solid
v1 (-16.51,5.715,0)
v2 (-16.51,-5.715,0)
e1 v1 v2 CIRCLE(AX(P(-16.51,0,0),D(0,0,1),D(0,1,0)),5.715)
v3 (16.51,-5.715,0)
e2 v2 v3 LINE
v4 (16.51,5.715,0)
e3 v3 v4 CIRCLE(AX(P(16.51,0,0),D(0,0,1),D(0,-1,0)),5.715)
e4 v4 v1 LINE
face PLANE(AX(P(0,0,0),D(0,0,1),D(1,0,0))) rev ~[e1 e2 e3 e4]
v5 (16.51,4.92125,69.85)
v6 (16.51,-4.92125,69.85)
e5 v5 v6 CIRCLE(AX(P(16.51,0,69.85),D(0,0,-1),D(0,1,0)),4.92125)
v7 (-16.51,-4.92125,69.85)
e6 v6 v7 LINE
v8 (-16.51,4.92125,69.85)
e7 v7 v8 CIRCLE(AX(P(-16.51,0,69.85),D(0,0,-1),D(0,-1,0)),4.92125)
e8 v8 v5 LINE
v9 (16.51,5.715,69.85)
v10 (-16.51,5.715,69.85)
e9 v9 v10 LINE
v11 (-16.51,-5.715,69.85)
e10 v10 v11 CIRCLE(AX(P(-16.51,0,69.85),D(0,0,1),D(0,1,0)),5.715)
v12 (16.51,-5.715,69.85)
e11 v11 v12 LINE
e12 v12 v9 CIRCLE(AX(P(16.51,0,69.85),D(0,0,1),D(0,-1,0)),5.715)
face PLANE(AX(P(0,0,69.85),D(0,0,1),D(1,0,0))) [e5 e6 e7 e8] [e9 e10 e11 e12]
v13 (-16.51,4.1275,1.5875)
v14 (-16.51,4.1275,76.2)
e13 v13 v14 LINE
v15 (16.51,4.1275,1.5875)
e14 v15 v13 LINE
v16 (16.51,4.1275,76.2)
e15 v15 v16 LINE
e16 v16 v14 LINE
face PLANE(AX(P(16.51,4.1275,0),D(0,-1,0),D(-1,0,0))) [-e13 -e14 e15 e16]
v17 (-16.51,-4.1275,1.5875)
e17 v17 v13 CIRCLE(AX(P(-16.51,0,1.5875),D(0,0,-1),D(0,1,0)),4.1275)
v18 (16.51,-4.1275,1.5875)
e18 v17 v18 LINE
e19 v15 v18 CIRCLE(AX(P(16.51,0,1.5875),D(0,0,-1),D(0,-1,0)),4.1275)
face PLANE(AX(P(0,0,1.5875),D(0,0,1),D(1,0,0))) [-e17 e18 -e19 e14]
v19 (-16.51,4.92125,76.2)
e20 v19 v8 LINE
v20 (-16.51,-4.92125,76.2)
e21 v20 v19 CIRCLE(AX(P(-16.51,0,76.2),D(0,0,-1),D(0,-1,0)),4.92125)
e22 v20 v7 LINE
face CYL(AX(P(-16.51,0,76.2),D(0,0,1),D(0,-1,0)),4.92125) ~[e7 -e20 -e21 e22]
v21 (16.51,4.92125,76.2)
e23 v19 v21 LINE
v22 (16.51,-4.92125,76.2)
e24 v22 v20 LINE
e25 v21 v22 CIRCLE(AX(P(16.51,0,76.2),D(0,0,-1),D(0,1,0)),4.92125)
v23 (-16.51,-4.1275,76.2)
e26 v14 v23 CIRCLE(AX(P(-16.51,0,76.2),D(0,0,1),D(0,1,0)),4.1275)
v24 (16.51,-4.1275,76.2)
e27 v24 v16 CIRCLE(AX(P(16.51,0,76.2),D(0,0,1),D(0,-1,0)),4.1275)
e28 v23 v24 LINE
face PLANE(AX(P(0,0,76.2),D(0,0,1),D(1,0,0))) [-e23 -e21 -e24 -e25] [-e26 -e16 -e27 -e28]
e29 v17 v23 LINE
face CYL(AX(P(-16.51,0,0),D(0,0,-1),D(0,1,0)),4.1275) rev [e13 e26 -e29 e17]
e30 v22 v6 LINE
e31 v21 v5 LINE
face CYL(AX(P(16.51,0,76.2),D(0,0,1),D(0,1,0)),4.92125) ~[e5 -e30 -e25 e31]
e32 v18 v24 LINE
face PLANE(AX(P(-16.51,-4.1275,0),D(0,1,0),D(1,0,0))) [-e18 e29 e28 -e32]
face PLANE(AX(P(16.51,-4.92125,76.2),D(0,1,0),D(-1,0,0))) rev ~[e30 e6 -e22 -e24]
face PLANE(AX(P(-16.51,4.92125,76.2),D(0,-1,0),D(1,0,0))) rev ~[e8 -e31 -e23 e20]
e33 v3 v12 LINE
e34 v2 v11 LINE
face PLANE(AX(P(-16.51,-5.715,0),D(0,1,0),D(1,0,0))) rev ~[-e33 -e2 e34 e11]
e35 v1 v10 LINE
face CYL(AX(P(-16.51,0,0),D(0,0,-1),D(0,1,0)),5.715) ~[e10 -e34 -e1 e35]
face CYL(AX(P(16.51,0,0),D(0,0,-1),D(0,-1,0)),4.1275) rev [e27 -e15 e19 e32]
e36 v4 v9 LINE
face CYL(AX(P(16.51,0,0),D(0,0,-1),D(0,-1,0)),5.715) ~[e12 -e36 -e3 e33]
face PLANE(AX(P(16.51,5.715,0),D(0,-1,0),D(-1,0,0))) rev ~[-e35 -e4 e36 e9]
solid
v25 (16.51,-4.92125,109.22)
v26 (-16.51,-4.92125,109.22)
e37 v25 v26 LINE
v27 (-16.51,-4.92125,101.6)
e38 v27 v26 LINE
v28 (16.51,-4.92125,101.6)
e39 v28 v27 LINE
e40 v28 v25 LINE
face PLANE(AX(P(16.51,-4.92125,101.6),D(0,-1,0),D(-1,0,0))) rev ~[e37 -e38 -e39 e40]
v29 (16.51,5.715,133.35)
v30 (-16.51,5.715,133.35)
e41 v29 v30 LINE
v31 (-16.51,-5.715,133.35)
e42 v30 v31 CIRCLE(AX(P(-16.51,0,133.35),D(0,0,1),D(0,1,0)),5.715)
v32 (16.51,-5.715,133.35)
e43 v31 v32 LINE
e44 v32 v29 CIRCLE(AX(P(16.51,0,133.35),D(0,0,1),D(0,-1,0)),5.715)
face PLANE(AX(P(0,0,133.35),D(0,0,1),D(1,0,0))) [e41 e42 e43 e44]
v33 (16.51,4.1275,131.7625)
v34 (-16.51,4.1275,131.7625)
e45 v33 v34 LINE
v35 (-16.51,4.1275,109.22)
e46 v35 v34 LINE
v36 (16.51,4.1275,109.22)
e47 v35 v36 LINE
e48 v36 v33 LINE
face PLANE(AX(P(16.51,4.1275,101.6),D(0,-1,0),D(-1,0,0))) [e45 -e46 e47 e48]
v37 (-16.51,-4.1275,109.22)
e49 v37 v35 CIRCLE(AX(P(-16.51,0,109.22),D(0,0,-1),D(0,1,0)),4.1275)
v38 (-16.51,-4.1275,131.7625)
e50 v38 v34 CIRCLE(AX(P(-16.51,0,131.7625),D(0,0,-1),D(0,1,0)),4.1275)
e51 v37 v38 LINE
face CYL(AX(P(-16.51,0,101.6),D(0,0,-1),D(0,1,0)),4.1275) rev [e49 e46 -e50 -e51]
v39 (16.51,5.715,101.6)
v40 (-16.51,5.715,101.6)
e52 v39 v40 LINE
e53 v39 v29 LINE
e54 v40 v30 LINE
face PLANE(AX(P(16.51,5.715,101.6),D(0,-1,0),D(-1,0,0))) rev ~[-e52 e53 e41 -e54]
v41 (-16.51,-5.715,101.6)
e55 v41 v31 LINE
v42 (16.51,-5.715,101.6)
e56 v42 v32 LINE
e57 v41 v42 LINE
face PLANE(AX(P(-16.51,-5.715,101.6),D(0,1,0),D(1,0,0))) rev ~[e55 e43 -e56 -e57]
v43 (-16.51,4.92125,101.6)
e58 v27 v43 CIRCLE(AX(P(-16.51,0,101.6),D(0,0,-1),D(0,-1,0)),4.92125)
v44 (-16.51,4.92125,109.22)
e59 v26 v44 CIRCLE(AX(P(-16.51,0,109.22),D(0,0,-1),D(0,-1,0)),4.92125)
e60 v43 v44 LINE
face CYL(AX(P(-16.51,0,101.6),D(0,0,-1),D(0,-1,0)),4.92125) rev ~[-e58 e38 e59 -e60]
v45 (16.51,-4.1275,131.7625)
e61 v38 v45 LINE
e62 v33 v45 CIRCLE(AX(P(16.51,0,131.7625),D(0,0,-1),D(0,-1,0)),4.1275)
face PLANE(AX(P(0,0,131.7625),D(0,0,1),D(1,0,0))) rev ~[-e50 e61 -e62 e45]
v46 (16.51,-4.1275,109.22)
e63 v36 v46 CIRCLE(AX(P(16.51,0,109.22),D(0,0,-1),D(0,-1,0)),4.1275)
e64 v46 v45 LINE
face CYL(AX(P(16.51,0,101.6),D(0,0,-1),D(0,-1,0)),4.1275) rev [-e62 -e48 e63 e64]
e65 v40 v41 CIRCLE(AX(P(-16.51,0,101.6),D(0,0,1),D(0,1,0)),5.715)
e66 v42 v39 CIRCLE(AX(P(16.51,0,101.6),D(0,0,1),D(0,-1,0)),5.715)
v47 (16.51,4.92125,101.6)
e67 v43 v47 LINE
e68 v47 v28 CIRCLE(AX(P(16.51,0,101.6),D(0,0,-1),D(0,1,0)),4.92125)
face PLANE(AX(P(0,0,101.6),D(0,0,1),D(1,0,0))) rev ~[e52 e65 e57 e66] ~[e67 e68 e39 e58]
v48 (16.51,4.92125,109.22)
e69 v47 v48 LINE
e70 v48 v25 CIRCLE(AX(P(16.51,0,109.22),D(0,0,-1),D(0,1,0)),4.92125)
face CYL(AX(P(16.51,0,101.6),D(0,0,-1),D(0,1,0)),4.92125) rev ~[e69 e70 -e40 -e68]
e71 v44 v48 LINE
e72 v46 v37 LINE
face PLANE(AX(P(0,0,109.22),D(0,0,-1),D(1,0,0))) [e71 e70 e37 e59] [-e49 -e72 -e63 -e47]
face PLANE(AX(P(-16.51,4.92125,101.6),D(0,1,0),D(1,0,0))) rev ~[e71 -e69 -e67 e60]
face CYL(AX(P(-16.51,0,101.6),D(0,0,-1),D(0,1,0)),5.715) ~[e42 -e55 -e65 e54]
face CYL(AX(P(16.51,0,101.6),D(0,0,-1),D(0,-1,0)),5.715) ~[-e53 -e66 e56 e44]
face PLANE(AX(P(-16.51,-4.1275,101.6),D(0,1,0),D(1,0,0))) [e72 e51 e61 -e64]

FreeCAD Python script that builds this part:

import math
import FreeCAD as App
import Part
import Sketcher
from FreeCAD import Vector
Q = App.Units.Quantity


def faces_at(feature, points):
    """Names of the faces that lie closest to the given points."""
    faces = feature.Shape.Faces
    near = lambda p: min(range(len(faces)), key=lambda i: faces[i].distToShape(Part.Vertex(*p))[0])
    return sorted({f"Face{near(p) + 1}" for p in points})

doc = App.newDocument("Part")
body = doc.addObject("PartDesign::Body", "Body")

sketch1 = body.newObject("Sketcher::SketchObject", "Sketch")
sketch1.AttachmentSupport = (doc.getObject("XY_Plane"), [""])
sketch1.MapMode = "FlatFace"
sketch1.addGeometry([
    Part.LineSegment(Vector(17, 6, 0), Vector(-17, 6, 0)),
    Part.ArcOfCircle(Part.Circle(Vector(-17, 0, 0), Vector(0, 0, 1), 6), math.radians(90), math.radians(270)),
    Part.LineSegment(Vector(-17, -6, 0), Vector(17, -6, 0)),
    Part.ArcOfCircle(Part.Circle(Vector(17, 0, 0), Vector(0, 0, 1), 6), math.radians(-90), math.radians(90)),
], False)
sketch1.addConstraint([
    Sketcher.Constraint("Tangent", 0, 2, 1, 1),
    Sketcher.Constraint("Tangent", 1, 2, 2, 1),
    Sketcher.Constraint("Tangent", 2, 2, 3, 1),
    Sketcher.Constraint("Tangent", 3, 2, 0, 1),
    Sketcher.Constraint("Horizontal", 0),
    Sketcher.Constraint("Horizontal", 2),
    Sketcher.Constraint("Symmetric", 1, 3, 3, 3, -1, 1),
    Sketcher.Constraint("DistanceX", 0, 2, 0, 1, Q("1.3 in")),
    Sketcher.Constraint("Radius", 1, Q("0.225 in")),
])
pad1 = body.newObject("PartDesign::Pad", "Pad")
pad1.Profile = sketch1
pad1.Length = Q("3 in")
doc.recompute()

thickness = body.newObject("PartDesign::Thickness", "Thickness")
thickness.Base = (pad1, faces_at(pad1, [(0, 0, 76.2)]))
thickness.Value = Q("0.0625 in")
thickness.Reversed = True
thickness.Join = "Arc"

sketch2 = body.newObject("Sketcher::SketchObject", "Sketch001")
sketch2.AttachmentSupport = (doc.getObject("XY_Plane"), [""])
sketch2.MapMode = "FlatFace"
sketch2.AttachmentOffset = App.Placement(Vector(0, 0, 3 * 25.4), App.Rotation())
sketch2.addGeometry([
    Part.LineSegment(Vector(16.5, 5.7, 0), Vector(-16.5, 5.7, 0)),
    Part.ArcOfCircle(Part.Circle(Vector(-16.5, 0, 0), Vector(0, 0, 1), 5.7), math.radians(90), math.radians(270)),
    Part.LineSegment(Vector(-16.5, -5.7, 0), Vector(16.5, -5.7, 0)),
    Part.ArcOfCircle(Part.Circle(Vector(16.5, 0, 0), Vector(0, 0, 1), 5.7), math.radians(-90), math.radians(90)),
    Part.LineSegment(Vector(16.5, -4.9, 0), Vector(-16.5, -4.9, 0)),
    Part.ArcOfCircle(Part.Circle(Vector(-16.5, 0, 0), Vector(0, 0, 1), 4.9), math.radians(90), math.radians(270)),
    Part.LineSegment(Vector(-16.5, 4.9, 0), Vector(16.5, 4.9, 0)),
    Part.ArcOfCircle(Part.Circle(Vector(16.5, 0, 0), Vector(0, 0, 1), 4.9), math.radians(-90), math.radians(90)),
], False)
sketch2.addConstraint([
    Sketcher.Constraint("Tangent", 0, 2, 1, 1),
    Sketcher.Constraint("Tangent", 1, 2, 2, 1),
    Sketcher.Constraint("Tangent", 2, 2, 3, 1),
    Sketcher.Constraint("Tangent", 3, 2, 0, 1),
    Sketcher.Constraint("Tangent", 4, 2, 5, 2),
    Sketcher.Constraint("Tangent", 5, 1, 6, 1),
    Sketcher.Constraint("Tangent", 6, 2, 7, 2),
    Sketcher.Constraint("Tangent", 7, 1, 4, 1),
    Sketcher.Constraint("Horizontal", 0),
    Sketcher.Constraint("Horizontal", 2),
    Sketcher.Constraint("Horizontal", 4),
    Sketcher.Constraint("Horizontal", 6),
    Sketcher.Constraint("Coincident", 5, 3, 1, 3),
    Sketcher.Constraint("Symmetric", 1, 3, 3, 3, -1, 1),
    Sketcher.Constraint("Vertical", 7, 3, 2, 2),
    Sketcher.Constraint("DistanceX", 0, 2, 0, 1, Q("1.3 in")),
    Sketcher.Constraint("Radius", 1, Q("0.225 in")),
    Sketcher.Constraint("Radius", 5, Q("4.92125 mm")),
])
pocket1 = body.newObject("PartDesign::Pocket", "Pocket")
pocket1.Profile = sketch2
pocket1.Length = Q("0.25 in")
body2 = doc.addObject("PartDesign::Body", "Body001")

sketch3 = body2.newObject("Sketcher::SketchObject", "Sketch002")
sketch3.AttachmentSupport = (doc.getObject("XY_Plane001"), [""])
sketch3.MapMode = "FlatFace"
sketch3.AttachmentOffset = App.Placement(Vector(0, 0, 4 * 25.4), App.Rotation())
sketch3.addGeometry([
    Part.LineSegment(Vector(17, 6, 0), Vector(-17, 6, 0)),
    Part.ArcOfCircle(Part.Circle(Vector(-17, 0, 0), Vector(0, 0, 1), 6), math.radians(90), math.radians(270)),
    Part.LineSegment(Vector(-17, -6, 0), Vector(17, -6, 0)),
    Part.ArcOfCircle(Part.Circle(Vector(17, 0, 0), Vector(0, 0, 1), 6), math.radians(-90), math.radians(90)),
], False)
sketch3.addConstraint([
    Sketcher.Constraint("Tangent", 0, 2, 1, 1),
    Sketcher.Constraint("Tangent", 1, 2, 2, 1),
    Sketcher.Constraint("Tangent", 2, 2, 3, 1),
    Sketcher.Constraint("Tangent", 3, 2, 0, 1),
    Sketcher.Constraint("Horizontal", 0),
    Sketcher.Constraint("Horizontal", 2),
    Sketcher.Constraint("Symmetric", 1, 3, 3, 3, -1, 1),
    Sketcher.Constraint("DistanceX", 0, 2, 0, 1, Q("1.3 in")),
    Sketcher.Constraint("Radius", 1, Q("0.225 in")),
])
pad2 = body2.newObject("PartDesign::Pad", "Pad001")
pad2.Profile = sketch3
pad2.Length = Q("1.25 in")
doc.recompute()

thickness2 = body2.newObject("PartDesign::Thickness", "Thickness001")
thickness2.Base = (pad2, faces_at(pad2, [(0, 0, 101.6)]))
thickness2.Value = Q("0.0625 in")
thickness2.Reversed = True
thickness2.Join = "Arc"

sketch4 = body2.newObject("Sketcher::SketchObject", "Sketch003")
sketch4.AttachmentSupport = (doc.getObject("XY_Plane001"), [""])
sketch4.MapMode = "FlatFace"
sketch4.AttachmentOffset = App.Placement(Vector(0, 0, 4 * 25.4), App.Rotation())
sketch4.addGeometry([
    Part.LineSegment(Vector(16.5, -4.9, 0), Vector(-16.5, -4.9, 0)),
    Part.ArcOfCircle(Part.Circle(Vector(-16.5, 0, 0), Vector(0, 0, 1), 4.9), math.radians(90), math.radians(270)),
    Part.LineSegment(Vector(-16.5, 4.9, 0), Vector(16.5, 4.9, 0)),
    Part.ArcOfCircle(Part.Circle(Vector(16.5, 0, 0), Vector(0, 0, 1), 4.9), math.radians(-90), math.radians(90)),
], False)
sketch4.addConstraint([
    Sketcher.Constraint("Tangent", 0, 2, 1, 2),
    Sketcher.Constraint("Tangent", 1, 1, 2, 1),
    Sketcher.Constraint("Tangent", 2, 2, 3, 2),
    Sketcher.Constraint("Tangent", 3, 1, 0, 1),
    Sketcher.Constraint("Horizontal", 0),
    Sketcher.Constraint("Horizontal", 2),
    Sketcher.Constraint("Symmetric", 1, 3, 3, 3, -1, 1),
    Sketcher.Constraint("DistanceX", 0, 2, 0, 1, Q("1.3 in")),
    Sketcher.Constraint("Radius", 1, Q("4.92125 mm")),
])
pocket2 = body2.newObject("PartDesign::Pocket", "Pocket001")
pocket2.Profile = sketch4
pocket2.Length = Q("0.3 in")
pocket2.Reversed = True

doc.recompute()
